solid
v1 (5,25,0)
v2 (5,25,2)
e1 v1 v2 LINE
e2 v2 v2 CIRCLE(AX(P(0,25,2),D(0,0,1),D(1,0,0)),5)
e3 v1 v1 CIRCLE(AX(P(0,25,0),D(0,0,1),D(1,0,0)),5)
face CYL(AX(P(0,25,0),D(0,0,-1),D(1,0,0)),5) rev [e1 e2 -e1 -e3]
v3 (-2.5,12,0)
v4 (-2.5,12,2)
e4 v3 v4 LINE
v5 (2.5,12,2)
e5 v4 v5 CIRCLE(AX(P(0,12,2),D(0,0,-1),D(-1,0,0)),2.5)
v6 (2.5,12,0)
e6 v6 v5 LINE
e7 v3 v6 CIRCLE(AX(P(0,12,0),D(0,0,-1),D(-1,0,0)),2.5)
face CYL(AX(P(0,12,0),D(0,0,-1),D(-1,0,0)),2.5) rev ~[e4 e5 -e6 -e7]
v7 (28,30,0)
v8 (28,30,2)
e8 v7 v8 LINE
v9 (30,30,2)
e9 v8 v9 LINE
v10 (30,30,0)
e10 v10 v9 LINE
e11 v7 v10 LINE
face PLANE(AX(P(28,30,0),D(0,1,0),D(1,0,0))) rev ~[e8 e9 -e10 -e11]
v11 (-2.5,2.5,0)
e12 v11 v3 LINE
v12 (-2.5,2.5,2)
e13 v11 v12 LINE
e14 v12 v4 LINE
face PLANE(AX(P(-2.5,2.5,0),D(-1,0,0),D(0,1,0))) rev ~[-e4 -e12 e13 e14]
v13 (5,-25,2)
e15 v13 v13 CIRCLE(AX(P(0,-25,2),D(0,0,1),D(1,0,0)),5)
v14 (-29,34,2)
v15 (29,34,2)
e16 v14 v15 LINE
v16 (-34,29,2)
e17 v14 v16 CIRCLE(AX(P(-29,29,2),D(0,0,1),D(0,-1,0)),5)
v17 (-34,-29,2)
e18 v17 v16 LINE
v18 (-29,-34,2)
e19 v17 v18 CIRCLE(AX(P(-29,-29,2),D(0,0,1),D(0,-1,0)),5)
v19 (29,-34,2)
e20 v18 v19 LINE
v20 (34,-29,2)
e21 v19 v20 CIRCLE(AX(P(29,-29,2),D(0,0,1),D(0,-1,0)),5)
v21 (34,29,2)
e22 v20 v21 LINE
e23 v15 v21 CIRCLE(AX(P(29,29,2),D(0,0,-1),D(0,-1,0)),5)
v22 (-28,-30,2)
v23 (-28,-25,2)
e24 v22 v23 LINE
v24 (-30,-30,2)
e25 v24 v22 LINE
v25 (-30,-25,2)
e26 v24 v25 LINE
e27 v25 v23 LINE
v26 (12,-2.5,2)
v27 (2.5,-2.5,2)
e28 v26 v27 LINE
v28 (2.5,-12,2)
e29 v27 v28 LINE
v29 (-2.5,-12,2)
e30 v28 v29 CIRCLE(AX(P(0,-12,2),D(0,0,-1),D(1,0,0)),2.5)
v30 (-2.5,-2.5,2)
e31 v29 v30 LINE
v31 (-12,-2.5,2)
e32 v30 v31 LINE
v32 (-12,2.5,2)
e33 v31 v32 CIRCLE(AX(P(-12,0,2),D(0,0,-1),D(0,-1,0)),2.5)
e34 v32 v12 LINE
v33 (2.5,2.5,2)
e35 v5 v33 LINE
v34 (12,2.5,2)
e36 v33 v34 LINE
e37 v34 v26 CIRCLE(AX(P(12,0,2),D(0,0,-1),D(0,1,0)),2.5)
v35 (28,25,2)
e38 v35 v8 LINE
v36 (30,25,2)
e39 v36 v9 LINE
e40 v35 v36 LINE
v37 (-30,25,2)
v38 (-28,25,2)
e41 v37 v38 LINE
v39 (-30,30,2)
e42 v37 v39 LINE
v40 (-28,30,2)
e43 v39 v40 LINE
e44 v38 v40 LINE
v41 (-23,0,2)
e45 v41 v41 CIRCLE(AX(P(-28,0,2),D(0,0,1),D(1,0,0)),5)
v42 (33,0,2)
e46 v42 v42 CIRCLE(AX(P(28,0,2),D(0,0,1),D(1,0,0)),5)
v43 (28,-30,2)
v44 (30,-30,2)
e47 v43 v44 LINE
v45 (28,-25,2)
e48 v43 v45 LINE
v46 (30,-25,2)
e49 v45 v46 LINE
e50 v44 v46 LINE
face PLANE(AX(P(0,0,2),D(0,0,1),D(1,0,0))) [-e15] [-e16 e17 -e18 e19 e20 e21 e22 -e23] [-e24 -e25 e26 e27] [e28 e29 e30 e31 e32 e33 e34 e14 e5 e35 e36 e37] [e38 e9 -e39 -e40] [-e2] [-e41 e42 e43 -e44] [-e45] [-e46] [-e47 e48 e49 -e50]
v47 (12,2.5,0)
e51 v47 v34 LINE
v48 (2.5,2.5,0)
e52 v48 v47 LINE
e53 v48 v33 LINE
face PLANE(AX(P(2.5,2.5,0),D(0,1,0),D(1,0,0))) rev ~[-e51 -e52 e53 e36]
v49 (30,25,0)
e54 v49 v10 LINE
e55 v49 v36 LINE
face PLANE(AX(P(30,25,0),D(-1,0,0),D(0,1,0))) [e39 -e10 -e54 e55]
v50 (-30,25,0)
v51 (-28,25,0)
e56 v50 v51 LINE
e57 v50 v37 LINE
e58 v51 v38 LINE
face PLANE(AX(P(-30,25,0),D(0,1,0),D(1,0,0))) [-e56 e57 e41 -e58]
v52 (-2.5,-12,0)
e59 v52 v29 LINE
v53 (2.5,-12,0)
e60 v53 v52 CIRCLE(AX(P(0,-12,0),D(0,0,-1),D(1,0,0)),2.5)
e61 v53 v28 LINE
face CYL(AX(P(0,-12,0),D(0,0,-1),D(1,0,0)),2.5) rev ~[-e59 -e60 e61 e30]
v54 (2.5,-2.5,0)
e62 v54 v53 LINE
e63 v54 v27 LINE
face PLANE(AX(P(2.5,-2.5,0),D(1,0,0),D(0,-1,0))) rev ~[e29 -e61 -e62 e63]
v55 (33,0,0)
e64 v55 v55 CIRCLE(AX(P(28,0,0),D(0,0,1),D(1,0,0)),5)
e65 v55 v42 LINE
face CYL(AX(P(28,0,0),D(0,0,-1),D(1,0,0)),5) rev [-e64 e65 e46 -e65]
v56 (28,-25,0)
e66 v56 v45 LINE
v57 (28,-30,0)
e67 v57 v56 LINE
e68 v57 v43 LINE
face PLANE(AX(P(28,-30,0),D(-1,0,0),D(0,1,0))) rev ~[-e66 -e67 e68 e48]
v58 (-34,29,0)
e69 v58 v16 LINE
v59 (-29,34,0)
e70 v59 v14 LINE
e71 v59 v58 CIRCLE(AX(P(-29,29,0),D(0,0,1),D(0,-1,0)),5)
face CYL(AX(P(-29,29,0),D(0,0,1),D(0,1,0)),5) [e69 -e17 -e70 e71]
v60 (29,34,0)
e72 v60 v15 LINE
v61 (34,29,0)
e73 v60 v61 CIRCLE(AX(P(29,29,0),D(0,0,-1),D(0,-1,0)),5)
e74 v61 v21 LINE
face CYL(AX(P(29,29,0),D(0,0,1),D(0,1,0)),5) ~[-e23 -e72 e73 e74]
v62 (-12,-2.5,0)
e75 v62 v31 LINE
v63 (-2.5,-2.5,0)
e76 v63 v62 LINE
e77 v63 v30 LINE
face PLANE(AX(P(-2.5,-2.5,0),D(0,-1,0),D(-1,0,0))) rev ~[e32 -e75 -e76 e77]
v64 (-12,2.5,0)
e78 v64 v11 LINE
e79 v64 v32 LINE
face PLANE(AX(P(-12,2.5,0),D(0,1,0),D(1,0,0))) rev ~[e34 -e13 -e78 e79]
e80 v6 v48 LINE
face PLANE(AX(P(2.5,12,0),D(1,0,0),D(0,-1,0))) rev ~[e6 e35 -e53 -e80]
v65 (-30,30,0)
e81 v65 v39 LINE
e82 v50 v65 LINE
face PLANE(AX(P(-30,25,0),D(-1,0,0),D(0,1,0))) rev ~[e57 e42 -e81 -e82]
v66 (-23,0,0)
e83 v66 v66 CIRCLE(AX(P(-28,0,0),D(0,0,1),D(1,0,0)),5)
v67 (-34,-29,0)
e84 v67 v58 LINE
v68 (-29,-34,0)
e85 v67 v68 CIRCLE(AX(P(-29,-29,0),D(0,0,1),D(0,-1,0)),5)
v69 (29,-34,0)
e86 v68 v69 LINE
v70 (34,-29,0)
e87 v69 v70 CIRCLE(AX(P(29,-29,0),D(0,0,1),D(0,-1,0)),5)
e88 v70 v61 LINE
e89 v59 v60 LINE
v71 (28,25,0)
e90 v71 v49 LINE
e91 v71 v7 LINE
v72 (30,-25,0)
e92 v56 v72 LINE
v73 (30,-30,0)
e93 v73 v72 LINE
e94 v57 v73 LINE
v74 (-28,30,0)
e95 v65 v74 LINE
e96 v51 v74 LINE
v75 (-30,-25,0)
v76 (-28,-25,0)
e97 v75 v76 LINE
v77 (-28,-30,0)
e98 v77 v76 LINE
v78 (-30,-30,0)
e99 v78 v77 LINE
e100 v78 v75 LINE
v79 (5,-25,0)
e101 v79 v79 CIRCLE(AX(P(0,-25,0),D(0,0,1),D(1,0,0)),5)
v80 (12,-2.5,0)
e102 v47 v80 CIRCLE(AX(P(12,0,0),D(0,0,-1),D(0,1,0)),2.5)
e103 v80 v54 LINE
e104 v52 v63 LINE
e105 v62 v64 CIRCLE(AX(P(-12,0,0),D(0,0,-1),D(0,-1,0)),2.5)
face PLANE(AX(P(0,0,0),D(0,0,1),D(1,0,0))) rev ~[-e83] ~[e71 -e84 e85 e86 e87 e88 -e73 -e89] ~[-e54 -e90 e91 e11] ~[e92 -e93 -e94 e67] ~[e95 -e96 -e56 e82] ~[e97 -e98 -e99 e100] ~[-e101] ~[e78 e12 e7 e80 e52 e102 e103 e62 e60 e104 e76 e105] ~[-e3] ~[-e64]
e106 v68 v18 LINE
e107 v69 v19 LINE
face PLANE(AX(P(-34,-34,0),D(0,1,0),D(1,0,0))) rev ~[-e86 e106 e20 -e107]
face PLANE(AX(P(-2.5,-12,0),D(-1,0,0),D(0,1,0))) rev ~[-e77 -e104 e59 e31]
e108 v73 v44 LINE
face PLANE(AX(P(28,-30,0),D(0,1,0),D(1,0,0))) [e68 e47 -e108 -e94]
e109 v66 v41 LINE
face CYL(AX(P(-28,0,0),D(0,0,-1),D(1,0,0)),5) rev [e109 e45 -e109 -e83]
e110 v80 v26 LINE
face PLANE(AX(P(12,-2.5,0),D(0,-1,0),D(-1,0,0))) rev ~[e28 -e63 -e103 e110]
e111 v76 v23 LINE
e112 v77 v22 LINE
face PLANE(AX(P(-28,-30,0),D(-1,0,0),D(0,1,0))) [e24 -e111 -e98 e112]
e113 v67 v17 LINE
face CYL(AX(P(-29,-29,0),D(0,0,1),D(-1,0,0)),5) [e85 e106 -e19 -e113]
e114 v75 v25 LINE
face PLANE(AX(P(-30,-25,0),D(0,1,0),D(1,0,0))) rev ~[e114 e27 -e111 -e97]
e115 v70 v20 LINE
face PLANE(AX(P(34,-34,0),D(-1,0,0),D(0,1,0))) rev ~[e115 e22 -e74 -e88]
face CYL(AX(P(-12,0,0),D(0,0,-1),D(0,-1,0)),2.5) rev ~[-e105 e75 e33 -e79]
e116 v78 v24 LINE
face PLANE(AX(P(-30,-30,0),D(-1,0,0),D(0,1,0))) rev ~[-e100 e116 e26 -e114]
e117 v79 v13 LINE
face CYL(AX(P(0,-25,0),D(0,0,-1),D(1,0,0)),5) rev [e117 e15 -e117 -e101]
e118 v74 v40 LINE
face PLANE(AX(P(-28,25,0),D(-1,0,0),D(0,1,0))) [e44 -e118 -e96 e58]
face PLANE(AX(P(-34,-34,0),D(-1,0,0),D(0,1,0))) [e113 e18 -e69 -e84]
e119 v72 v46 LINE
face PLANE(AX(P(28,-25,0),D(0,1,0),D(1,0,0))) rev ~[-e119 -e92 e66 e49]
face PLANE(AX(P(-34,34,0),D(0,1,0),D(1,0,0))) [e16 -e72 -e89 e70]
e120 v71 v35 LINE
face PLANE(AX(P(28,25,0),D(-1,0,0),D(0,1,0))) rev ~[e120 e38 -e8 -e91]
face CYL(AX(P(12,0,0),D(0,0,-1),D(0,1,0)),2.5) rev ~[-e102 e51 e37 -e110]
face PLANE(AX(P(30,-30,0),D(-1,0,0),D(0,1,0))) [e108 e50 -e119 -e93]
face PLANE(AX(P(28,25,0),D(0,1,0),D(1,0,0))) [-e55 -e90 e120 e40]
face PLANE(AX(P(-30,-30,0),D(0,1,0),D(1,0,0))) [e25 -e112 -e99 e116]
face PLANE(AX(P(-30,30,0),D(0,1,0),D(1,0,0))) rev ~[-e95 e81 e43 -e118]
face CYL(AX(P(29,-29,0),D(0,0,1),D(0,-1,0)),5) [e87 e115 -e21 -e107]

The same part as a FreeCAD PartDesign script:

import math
import FreeCAD as App
import Part
import Sketcher

V = App.Vector
Q = App.Units.Quantity


def edges_at(feature, points):
    """Names of the edges that pass closest to the given points."""
    edges = feature.Shape.Edges
    near = lambda p: min(range(len(edges)), key=lambda i: edges[i].distToShape(Part.Vertex(*p))[0])
    return sorted({f"Edge{near(p) + 1}" for p in points})


def add_polygon(sketch, points):
    """Adds a closed chain of lines whose ends are joined by coincident constraints."""
    first, n = sketch.GeometryCount, len(points)
    for a, b in zip(points, points[1:] + points[:1]):
        sketch.addGeometry(Part.LineSegment(App.Vector(*a, 0), App.Vector(*b, 0)), False)
    for i in range(n):
        sketch.addConstraint(Sketcher.Constraint("Coincident", first + i, 2, first + (i + 1) % n, 1))

doc = App.newDocument("Part")
params = doc.addObject("Spreadsheet::Sheet", "Params")
for row, (alias, value) in enumerate([
    ("sketch1_diameter", "10 mm"),
    ("sketch1_radius", "2.5 mm"),
    ("sketch1_width", "68 mm"),
    ("sketch1_width2", "2 mm"),
    ("sketch1_height", "5 mm"),
    ("pad1_length", "2 mm"),
    ("fillet_radius", "5 mm"),
    ("fillet2_radius", "5 mm"),
    ("fillet3_radius", "5 mm"),
    ("fillet4_radius", "5 mm"),
], start=1):
    params.set(f"A{row}", alias)
    params.set(f"B{row}", "=" + value)
    params.setAlias(f"B{row}", alias)

body = doc.addObject("PartDesign::Body", "Body")

# Sketch on XY plane
sketch1 = body.newObject("Sketcher::SketchObject", "Sketch")
sketch1.AttachmentSupport = (doc.getObject("XY_Plane"), [""])
sketch1.MapMode = "FlatFace"
add_polygon(sketch1, [(-34, 34), (-34, -34), (34, -34), (34, 34)])  # lines 0-3
add_polygon(sketch1, [(-28, -30), (-30, -30), (-30, -25), (-28, -25)])  # lines 4-7
sketch1.addGeometry(Part.Circle(V(0, -25, 0), V(0, 0, 1), 5), False)  # 8
add_polygon(sketch1, [(30, -30), (28, -30), (28, -25), (30, -25)])  # lines 9-12
sketch1.addGeometry(Part.Circle(V(-28, 0, 0), V(0, 0, 1), 5), False)  # 13
add_polygon(sketch1, [(-28, 25), (-30, 25), (-30, 30), (-28, 30)])  # lines 14-17
sketch1.addGeometry(Part.LineSegment(V(-2.5, -2.5, 0), V(-12, -2.5, 0)), False)  # 18
sketch1.addGeometry(Part.ArcOfCircle(Part.Circle(V(-12, 0, 0), V(0, 0, 1), 2.5), math.radians(90), math.radians(270)), False)  # 19
sketch1.addGeometry(Part.LineSegment(V(-12, 2.5, 0), V(-2.5, 2.5, 0)), False)  # 20
sketch1.addGeometry(Part.LineSegment(V(-2.5, 2.5, 0), V(-2.5, 12, 0)), False)  # 21
sketch1.addGeometry(Part.ArcOfCircle(Part.Circle(V(0, 12, 0), V(0, 0, 1), 2.5), math.radians(0), math.radians(180)), False)  # 22
sketch1.addGeometry(Part.LineSegment(V(2.5, 12, 0), V(2.5, 2.5, 0)), False)  # 23
sketch1.addGeometry(Part.LineSegment(V(2.5, 2.5, 0), V(12, 2.5, 0)), False)  # 24
sketch1.addGeometry(Part.ArcOfCircle(Part.Circle(V(12, 0, 0), V(0, 0, 1), 2.5), math.radians(-90), math.radians(90)), False)  # 25
sketch1.addGeometry(Part.LineSegment(V(12, -2.5, 0), V(2.5, -2.5, 0)), False)  # 26
sketch1.addGeometry(Part.LineSegment(V(2.5, -2.5, 0), V(2.5, -12, 0)), False)  # 27
sketch1.addGeometry(Part.ArcOfCircle(Part.Circle(V(0, -12, 0), V(0, 0, 1), 2.5), math.radians(180), math.radians(360)), False)  # 28
sketch1.addGeometry(Part.LineSegment(V(-2.5, -12, 0), V(-2.5, -2.5, 0)), False)  # 29
sketch1.addGeometry(Part.Circle(V(28, 0, 0), V(0, 0, 1), 5), False)  # 30
sketch1.addGeometry(Part.Circle(V(0, 25, 0), V(0, 0, 1), 5), False)  # 31
add_polygon(sketch1, [(30, 25), (28, 25), (28, 30), (30, 30)])  # lines 32-35
sketch1.addConstraint(Sketcher.Constraint("Tangent", 18, 2, 19, 2))
sketch1.addConstraint(Sketcher.Constraint("Tangent", 19, 1, 20, 1))
sketch1.addConstraint(Sketcher.Constraint("Coincident", 20, 2, 21, 1))
sketch1.addConstraint(Sketcher.Constraint("Tangent", 21, 2, 22, 2))
sketch1.addConstraint(Sketcher.Constraint("Tangent", 22, 1, 23, 1))
sketch1.addConstraint(Sketcher.Constraint("Coincident", 23, 2, 24, 1))
sketch1.addConstraint(Sketcher.Constraint("Tangent", 24, 2, 25, 2))
sketch1.addConstraint(Sketcher.Constraint("Tangent", 25, 1, 26, 1))
sketch1.addConstraint(Sketcher.Constraint("Coincident", 26, 2, 27, 1))
sketch1.addConstraint(Sketcher.Constraint("Tangent", 27, 2, 28, 2))
sketch1.addConstraint(Sketcher.Constraint("Tangent", 28, 1, 29, 1))
sketch1.addConstraint(Sketcher.Constraint("Coincident", 29, 2, 18, 1))
sketch1.addConstraint(Sketcher.Constraint("Vertical", 0))
sketch1.addConstraint(Sketcher.Constraint("Horizontal", 1))
sketch1.addConstraint(Sketcher.Constraint("Vertical", 2))
sketch1.addConstraint(Sketcher.Constraint("Horizontal", 3))
sketch1.addConstraint(Sketcher.Constraint("Horizontal", 4))
sketch1.addConstraint(Sketcher.Constraint("Vertical", 5))
sketch1.addConstraint(Sketcher.Constraint("Horizontal", 6))
sketch1.addConstraint(Sketcher.Constraint("Vertical", 7))
sketch1.addConstraint(Sketcher.Constraint("Horizontal", 9))
sketch1.addConstraint(Sketcher.Constraint("Vertical", 10))
sketch1.addConstraint(Sketcher.Constraint("Horizontal", 11))
sketch1.addConstraint(Sketcher.Constraint("Vertical", 12))
sketch1.addConstraint(Sketcher.Constraint("Horizontal", 14))
sketch1.addConstraint(Sketcher.Constraint("Vertical", 15))
sketch1.addConstraint(Sketcher.Constraint("Horizontal", 16))
sketch1.addConstraint(Sketcher.Constraint("Vertical", 17))
sketch1.addConstraint(Sketcher.Constraint("Horizontal", 18))
sketch1.addConstraint(Sketcher.Constraint("Horizontal", 20))
sketch1.addConstraint(Sketcher.Constraint("Vertical", 21))
sketch1.addConstraint(Sketcher.Constraint("Vertical", 23))
sketch1.addConstraint(Sketcher.Constraint("Horizontal", 24))
sketch1.addConstraint(Sketcher.Constraint("Horizontal", 26))
sketch1.addConstraint(Sketcher.Constraint("Vertical", 27))
sketch1.addConstraint(Sketcher.Constraint("Vertical", 29))
sketch1.addConstraint(Sketcher.Constraint("Horizontal", 32))
sketch1.addConstraint(Sketcher.Constraint("Vertical", 33))
sketch1.addConstraint(Sketcher.Constraint("Horizontal", 34))
sketch1.addConstraint(Sketcher.Constraint("Vertical", 35))
sketch1.addConstraint(Sketcher.Constraint("Equal", 8, 13))
sketch1.addConstraint(Sketcher.Constraint("Equal", 19, 22))
sketch1.addConstraint(Sketcher.Constraint("Equal", 22, 25))
sketch1.addConstraint(Sketcher.Constraint("Equal", 25, 28))
sketch1.addConstraint(Sketcher.Constraint("Equal", 13, 30))
sketch1.addConstraint(Sketcher.Constraint("Equal", 30, 31))
sketch1.addConstraint(Sketcher.Constraint("Symmetric", 19, 3, 25, 3, -1, 1))
sketch1.addConstraint(Sketcher.Constraint("Symmetric", 22, 3, 28, 3, -1, 1))
sketch1.addConstraint(Sketcher.Constraint("Symmetric", 13, 3, 30, 3, -1, 1))
sketch1.addConstraint(Sketcher.Constraint("Symmetric", 8, 3, 31, 3, -1, 1))
sketch1.addConstraint(Sketcher.Constraint("Symmetric", 0, 2, 2, 2, -1, 1))
sketch1.addConstraint(Sketcher.Constraint("Symmetric", 11, 2, 14, 2, -1, 1))
sketch1.addConstraint(Sketcher.Constraint("Symmetric", 9, 2, 16, 2, -1, 1))
sketch1.addConstraint(Sketcher.Constraint("Symmetric", 6, 2, 32, 2, -1, 1))
sketch1.addConstraint(Sketcher.Constraint("Symmetric", 4, 2, 34, 2, -1, 1))
sketch1.addConstraint(Sketcher.Constraint("Symmetric", 7, 2, 9, 2, -2))
sketch1.addConstraint(Sketcher.Constraint("Symmetric", 5, 2, 11, 2, -2))
sketch1.addConstraint(Sketcher.Constraint("Symmetric", 20, 2, 23, 2, -2))
sketch1.addConstraint(Sketcher.Constraint("PointOnObject", 8, 3, -2))
sketch1.addConstraint(Sketcher.Constraint("PointOnObject", 13, 3, -1))
sketch1.addConstraint(Sketcher.Constraint("Horizontal", 8, 3, 5, 2))
sketch1.addConstraint(Sketcher.Constraint("Vertical", 13, 3, 6, 2))
sketch1.addConstraint(Sketcher.Constraint("Equal", 3, 0))
sketch1.addConstraint(Sketcher.Constraint("Equal", 26, 21))
sketch1.addConstraint(Sketcher.Constraint("Diameter", 8, Q("10 mm")))
sketch1.addConstraint(Sketcher.Constraint("Radius", 19, Q("2.5 mm")))
sketch1.addConstraint(Sketcher.Constraint("DistanceX", 1, 1, 1, 2, Q("68 mm")))
sketch1.addConstraint(Sketcher.Constraint("DistanceX", 4, 2, 4, 1, Q("2 mm")))
sketch1.addConstraint(Sketcher.Constraint("DistanceY", 5, 1, 5, 2, Q("5 mm")))
sketch1.addConstraint(Sketcher.Constraint("DistanceX", 18, 2, 18, 1, Q("9.5 mm")))
sketch1.addConstraint(Sketcher.Constraint("DistanceY", 8, 3, -1, 1, Q("25 mm")))
sketch1.addConstraint(Sketcher.Constraint("DistanceX", 13, 3, -1, 1, Q("28 mm")))
sketch1.setExpression("Constraints[84]", "Params.sketch1_diameter")
sketch1.setExpression("Constraints[85]", "Params.sketch1_radius")
sketch1.setExpression("Constraints[86]", "Params.sketch1_width")
sketch1.setExpression("Constraints[87]", "Params.sketch1_width2")
sketch1.setExpression("Constraints[88]", "Params.sketch1_height")
pad1 = body.newObject("PartDesign::Pad", "Pad")
pad1.Profile = sketch1
pad1.setExpression("Length", "Params.pad1_length")
doc.recompute()

fillet = body.newObject("PartDesign::Fillet", "Fillet")
fillet.Base = (pad1, edges_at(pad1, [(34, 34, 1)]))
fillet.setExpression("Radius", "Params.fillet_radius")
doc.recompute()

fillet2 = body.newObject("PartDesign::Fillet", "Fillet001")
fillet2.Base = (fillet, edges_at(fillet, [(-34, 34, 1)]))
fillet2.setExpression("Radius", "Params.fillet2_radius")
doc.recompute()

fillet3 = body.newObject("PartDesign::Fillet", "Fillet002")
fillet3.Base = (fillet2, edges_at(fillet2, [(-34, -34, 1)]))
fillet3.setExpression("Radius", "Params.fillet3_radius")
doc.recompute()

fillet4 = body.newObject("PartDesign::Fillet", "Fillet003")
fillet4.Base = (fillet3, edges_at(fillet3, [(34, -34, 1)]))
fillet4.setExpression("Radius", "Params.fillet4_radius")

doc.recompute()
